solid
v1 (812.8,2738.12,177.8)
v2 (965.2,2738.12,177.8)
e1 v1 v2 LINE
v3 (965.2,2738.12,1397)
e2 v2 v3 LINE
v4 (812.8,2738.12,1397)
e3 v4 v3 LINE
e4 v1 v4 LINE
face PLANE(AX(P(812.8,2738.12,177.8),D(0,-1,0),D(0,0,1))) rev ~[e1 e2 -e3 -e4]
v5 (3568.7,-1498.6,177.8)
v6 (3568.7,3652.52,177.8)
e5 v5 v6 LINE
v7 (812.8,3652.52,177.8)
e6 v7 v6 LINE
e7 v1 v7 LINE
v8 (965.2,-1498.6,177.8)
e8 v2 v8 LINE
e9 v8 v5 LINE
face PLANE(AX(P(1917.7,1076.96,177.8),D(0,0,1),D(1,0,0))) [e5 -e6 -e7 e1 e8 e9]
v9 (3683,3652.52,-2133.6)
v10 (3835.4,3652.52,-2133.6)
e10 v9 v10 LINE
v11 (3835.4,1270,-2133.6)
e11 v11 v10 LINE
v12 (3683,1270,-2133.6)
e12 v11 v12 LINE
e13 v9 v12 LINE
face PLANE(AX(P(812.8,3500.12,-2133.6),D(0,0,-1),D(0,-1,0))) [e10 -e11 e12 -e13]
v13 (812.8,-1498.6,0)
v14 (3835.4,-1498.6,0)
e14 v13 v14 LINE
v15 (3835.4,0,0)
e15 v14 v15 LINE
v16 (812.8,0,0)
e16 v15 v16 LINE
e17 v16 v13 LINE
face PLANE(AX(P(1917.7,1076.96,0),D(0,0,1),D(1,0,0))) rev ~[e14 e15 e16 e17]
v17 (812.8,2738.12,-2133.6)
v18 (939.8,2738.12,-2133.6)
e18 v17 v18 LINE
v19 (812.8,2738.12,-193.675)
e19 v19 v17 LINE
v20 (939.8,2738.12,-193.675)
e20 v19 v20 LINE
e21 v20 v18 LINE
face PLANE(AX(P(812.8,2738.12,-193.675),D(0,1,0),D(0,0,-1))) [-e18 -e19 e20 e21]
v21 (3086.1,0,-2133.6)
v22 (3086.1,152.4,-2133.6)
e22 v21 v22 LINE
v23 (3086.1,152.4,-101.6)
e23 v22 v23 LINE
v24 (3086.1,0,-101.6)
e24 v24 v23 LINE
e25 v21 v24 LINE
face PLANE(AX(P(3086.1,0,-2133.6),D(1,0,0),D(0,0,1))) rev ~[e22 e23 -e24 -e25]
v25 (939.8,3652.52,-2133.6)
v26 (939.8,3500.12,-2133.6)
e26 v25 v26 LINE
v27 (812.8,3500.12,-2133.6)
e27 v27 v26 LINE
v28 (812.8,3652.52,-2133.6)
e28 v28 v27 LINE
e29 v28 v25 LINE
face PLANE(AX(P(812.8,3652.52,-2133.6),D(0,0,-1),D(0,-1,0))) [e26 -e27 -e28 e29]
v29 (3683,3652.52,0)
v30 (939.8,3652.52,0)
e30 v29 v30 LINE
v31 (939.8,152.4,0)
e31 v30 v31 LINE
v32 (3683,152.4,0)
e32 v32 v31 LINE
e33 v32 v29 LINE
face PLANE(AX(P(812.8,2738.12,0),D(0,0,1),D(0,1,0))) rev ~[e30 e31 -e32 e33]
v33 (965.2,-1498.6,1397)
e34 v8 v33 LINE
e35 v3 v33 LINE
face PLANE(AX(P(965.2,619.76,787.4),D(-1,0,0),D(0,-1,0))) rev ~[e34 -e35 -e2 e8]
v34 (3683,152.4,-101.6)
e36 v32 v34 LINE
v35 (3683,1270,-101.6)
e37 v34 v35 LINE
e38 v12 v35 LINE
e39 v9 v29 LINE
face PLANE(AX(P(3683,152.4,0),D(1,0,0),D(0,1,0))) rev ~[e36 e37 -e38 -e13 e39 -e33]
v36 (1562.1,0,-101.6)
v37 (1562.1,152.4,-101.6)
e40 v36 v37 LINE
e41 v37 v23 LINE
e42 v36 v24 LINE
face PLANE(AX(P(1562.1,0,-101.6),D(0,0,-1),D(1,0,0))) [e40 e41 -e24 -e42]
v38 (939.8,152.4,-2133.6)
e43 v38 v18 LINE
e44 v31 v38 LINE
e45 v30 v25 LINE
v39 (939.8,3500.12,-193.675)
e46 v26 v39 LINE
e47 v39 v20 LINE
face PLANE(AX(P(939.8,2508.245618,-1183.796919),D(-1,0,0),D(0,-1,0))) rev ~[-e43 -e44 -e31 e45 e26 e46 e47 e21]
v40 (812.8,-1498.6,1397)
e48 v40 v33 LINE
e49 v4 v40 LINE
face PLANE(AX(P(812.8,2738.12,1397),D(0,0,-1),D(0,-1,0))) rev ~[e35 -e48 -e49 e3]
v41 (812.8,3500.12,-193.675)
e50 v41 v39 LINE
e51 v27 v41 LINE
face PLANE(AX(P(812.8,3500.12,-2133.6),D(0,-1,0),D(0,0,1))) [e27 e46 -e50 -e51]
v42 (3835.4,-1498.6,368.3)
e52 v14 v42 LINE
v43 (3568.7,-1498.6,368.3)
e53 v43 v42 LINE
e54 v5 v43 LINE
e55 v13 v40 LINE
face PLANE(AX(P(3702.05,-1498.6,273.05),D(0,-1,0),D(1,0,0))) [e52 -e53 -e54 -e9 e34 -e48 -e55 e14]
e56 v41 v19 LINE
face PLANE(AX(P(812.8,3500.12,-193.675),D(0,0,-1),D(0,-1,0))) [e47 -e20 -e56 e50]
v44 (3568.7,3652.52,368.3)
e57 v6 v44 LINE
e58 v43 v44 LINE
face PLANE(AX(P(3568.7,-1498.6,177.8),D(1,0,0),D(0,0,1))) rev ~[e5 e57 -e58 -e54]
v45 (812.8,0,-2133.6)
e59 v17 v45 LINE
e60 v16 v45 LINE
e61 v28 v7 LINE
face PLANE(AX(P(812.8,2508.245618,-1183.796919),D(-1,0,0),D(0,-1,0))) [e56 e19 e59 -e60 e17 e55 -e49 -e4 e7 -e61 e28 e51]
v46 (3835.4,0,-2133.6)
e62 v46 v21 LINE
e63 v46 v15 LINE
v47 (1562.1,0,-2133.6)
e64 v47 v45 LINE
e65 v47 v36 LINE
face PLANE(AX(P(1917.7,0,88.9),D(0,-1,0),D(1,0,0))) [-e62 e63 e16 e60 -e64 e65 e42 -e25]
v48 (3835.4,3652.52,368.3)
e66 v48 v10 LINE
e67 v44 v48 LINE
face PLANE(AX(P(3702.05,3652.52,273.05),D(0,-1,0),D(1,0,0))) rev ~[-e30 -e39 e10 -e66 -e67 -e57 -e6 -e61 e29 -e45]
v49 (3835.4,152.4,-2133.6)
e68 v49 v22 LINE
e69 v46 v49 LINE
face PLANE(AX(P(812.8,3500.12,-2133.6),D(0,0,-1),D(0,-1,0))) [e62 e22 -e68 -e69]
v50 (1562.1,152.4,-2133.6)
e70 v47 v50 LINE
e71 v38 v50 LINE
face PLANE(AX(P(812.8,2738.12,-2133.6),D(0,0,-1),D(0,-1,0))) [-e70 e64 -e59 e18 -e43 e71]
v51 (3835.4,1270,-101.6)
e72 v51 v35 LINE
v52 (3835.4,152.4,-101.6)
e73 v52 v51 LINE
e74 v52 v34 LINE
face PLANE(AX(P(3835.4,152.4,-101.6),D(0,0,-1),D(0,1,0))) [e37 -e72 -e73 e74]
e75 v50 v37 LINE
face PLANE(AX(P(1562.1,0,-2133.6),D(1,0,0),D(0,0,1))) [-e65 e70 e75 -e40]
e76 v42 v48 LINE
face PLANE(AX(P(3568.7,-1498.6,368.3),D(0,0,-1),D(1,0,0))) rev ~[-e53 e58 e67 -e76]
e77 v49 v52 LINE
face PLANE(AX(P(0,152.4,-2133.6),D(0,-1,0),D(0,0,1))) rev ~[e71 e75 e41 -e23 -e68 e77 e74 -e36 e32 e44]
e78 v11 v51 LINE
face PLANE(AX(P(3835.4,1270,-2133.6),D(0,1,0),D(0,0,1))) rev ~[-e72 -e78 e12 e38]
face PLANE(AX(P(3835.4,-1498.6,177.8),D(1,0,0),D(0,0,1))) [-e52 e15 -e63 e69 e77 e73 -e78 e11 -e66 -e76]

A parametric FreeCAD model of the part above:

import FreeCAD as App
import Part
import Sketcher
Q = App.Units.Quantity


def add_polygon(sketch, points):
    """Adds a closed chain of lines whose ends are joined by coincident constraints."""
    first, n = sketch.GeometryCount, len(points)
    for a, b in zip(points, points[1:] + points[:1]):
        sketch.addGeometry(Part.LineSegment(App.Vector(*a, 0), App.Vector(*b, 0)), False)
    for i in range(n):
        sketch.addConstraint(Sketcher.Constraint("Coincident", first + i, 2, first + (i + 1) % n, 1))

doc = App.newDocument("Part")
body = doc.addObject("PartDesign::Body", "Body")

sketch1 = body.newObject("Sketcher::SketchObject", "Sketch")
sketch1.AttachmentSupport = (doc.getObject("XY_Plane"), [""])
sketch1.MapMode = "FlatFace"
add_polygon(sketch1, [(0, 3653), (0, 0), (3835, 0), (3835, 3653)])
add_polygon(sketch1, [(3683, 152), (152, 152), (152, 3500), (3683, 3500)])
sketch1.addConstraint([
    Sketcher.Constraint("Vertical", 0),
    Sketcher.Constraint("Horizontal", 1),
    Sketcher.Constraint("Vertical", 2),
    Sketcher.Constraint("Horizontal", 3),
    Sketcher.Constraint("Horizontal", 4),
    Sketcher.Constraint("Vertical", 5),
    Sketcher.Constraint("Horizontal", 6),
    Sketcher.Constraint("Vertical", 7),
    Sketcher.Constraint("Coincident", 0, 2, -1, 1),
    Sketcher.Constraint("DistanceX", 1, 1, 1, 2, Q("151 in")),
    Sketcher.Constraint("DistanceX", 4, 2, 4, 1, Q("139 in")),
    Sketcher.Constraint("DistanceY", 0, 2, 0, 1, Q("143.8 in")),
    Sketcher.Constraint("DistanceY", 5, 1, 5, 2, Q("131.8 in")),
    Sketcher.Constraint("DistanceX", -1, 1, 4, 2, Q("6 in")),
    Sketcher.Constraint("DistanceY", -1, 1, 4, 2, Q("6 in")),
])
pad1 = body.newObject("PartDesign::Pad", "Pad")
pad1.Profile = sketch1
pad1.Length = Q("84 in")
pad1.Reversed = True

sketch2 = body.newObject("Sketcher::SketchObject", "Sketch001")
sketch2.AttachmentSupport = (doc.getObject("XZ_Plane"), [""])
sketch2.MapMode = "FlatFace"
add_polygon(sketch2, [(0, 178), (0, 0), (3835, 0), (3835, 178)])
sketch2.addConstraint([
    Sketcher.Constraint("Vertical", 0),
    Sketcher.Constraint("Horizontal", 1),
    Sketcher.Constraint("Vertical", 2),
    Sketcher.Constraint("Horizontal", 3),
    Sketcher.Constraint("Coincident", 0, 2, -1, 1),
    Sketcher.Constraint("DistanceX", 1, 1, 1, 2, Q("151 in")),
    Sketcher.Constraint("DistanceY", 0, 2, 0, 1, Q("7 in")),
])
pad2 = body.newObject("PartDesign::Pad", "Pad001")
pad2.Profile = sketch2
pad2.Length = Q("143.8 in")
pad2.Reversed = True

sketch3 = body.newObject("Sketcher::SketchObject", "Sketch002")
sketch3.AttachmentSupport = (doc.getObject("YZ_Plane"), [""])
sketch3.MapMode = "FlatFace"
add_polygon(sketch3, [(3500, 0), (3500, -2134), (152, -2134), (152, 0)])
sketch3.addConstraint([
    Sketcher.Constraint("Vertical", 0),
    Sketcher.Constraint("Horizontal", 1),
    Sketcher.Constraint("Vertical", 2),
    Sketcher.Constraint("Horizontal", 3),
    Sketcher.Constraint("PointOnObject", 2, 2, -1),
    Sketcher.Constraint("DistanceY", 0, 2, 0, 1, Q("84 in")),
    Sketcher.Constraint("DistanceX", 1, 2, 1, 1, Q("131.8 in")),
    Sketcher.Constraint("DistanceX", -1, 1, 1, 2, Q("6 in")),
])
pocket1 = body.newObject("PartDesign::Pocket", "Pocket")
pocket1.Profile = sketch3
pocket1.Length = Q("6 in")
pocket1.Reversed = True

sketch4 = body.newObject("Sketcher::SketchObject", "Sketch003")
sketch4.AttachmentSupport = (doc.getObject("XY_Plane"), [""])
sketch4.MapMode = "FlatFace"
sketch4.AttachmentOffset = App.Placement(App.Vector(0, 0, 7 * 25.4), App.Rotation())
add_polygon(sketch4, [(0, 3653), (0, -1499), (3835, -1499), (3835, 3653)])
sketch4.addConstraint([
    Sketcher.Constraint("Vertical", 0),
    Sketcher.Constraint("Horizontal", 1),
    Sketcher.Constraint("Vertical", 2),
    Sketcher.Constraint("Horizontal", 3),
    Sketcher.Constraint("PointOnObject", 0, 2, -2),
    Sketcher.Constraint("DistanceX", 1, 1, 1, 2, Q("151 in")),
    Sketcher.Constraint("DistanceY", 0, 2, 0, 1, Q("202.8 in")),
    Sketcher.Constraint("DistanceY", 0, 2, -1, 1, Q("59 in")),
])
pad3 = body.newObject("PartDesign::Pad", "Pad002")
pad3.Profile = sketch4
pad3.Type = "UpToLast"
pad3.Reversed = True

sketch5 = body.newObject("Sketcher::SketchObject", "Sketch004")
sketch5.AttachmentSupport = (doc.getObject("YZ_Plane"), [""])
sketch5.MapMode = "FlatFace"
add_polygon(sketch5, [(3500, 178), (3500, -2134), (-1499, -2134), (-1499, 178)])
sketch5.addConstraint([
    Sketcher.Constraint("Vertical", 0),
    Sketcher.Constraint("Horizontal", 1),
    Sketcher.Constraint("Vertical", 2),
    Sketcher.Constraint("Horizontal", 3),
    Sketcher.Constraint("DistanceY", 0, 2, 0, 1, Q("91 in")),
    Sketcher.Constraint("DistanceX", 1, 2, 1, 1, Q("196.8 in")),
    Sketcher.Constraint("DistanceY", 0, 2, -1, 1, Q("84 in")),
    Sketcher.Constraint("DistanceX", 1, 2, -1, 1, Q("59 in")),
])
pocket2 = body.newObject("PartDesign::Pocket", "Pocket001")
pocket2.Profile = sketch5
pocket2.Length = Q("32 in")
pocket2.Reversed = True

sketch6 = body.newObject("Sketcher::SketchObject", "Sketch005")
sketch6.AttachmentSupport = (doc.getObject("YZ_Plane"), [""])
sketch6.MapMode = "FlatFace"
sketch6.AttachmentOffset = App.Placement(App.Vector(0, 0, 32 * 25.4), App.Rotation())
add_polygon(sketch6, [(3500, 178), (3500, -2134), (0, -2134), (0, 178)])
sketch6.addConstraint([
    Sketcher.Constraint("Vertical", 0),
    Sketcher.Constraint("Horizontal", 1),
    Sketcher.Constraint("Vertical", 2),
    Sketcher.Constraint("Horizontal", 3),
    Sketcher.Constraint("PointOnObject", 1, 2, -2),
    Sketcher.Constraint("DistanceY", 0, 2, 0, 1, Q("91 in")),
    Sketcher.Constraint("DistanceX", 1, 2, 1, 1, Q("137.8 in")),
    Sketcher.Constraint("DistanceY", 0, 2, -1, 1, Q("84 in")),
])
pad4 = body.newObject("PartDesign::Pad", "Pad003")
pad4.Profile = sketch6
pad4.Length = Q("5 in")

sketch7 = body.newObject("Sketcher::SketchObject", "Sketch006")
sketch7.AttachmentSupport = (doc.getObject("XZ_Plane"), [""])
sketch7.MapMode = "FlatFace"
add_polygon(sketch7, [(1562, -102), (1562, -2134), (3086, -2134), (3086, -102)])
sketch7.addConstraint([
    Sketcher.Constraint("Vertical", 0),
    Sketcher.Constraint("Horizontal", 1),
    Sketcher.Constraint("Vertical", 2),
    Sketcher.Constraint("Horizontal", 3),
    Sketcher.Constraint("DistanceX", 1, 1, 1, 2, Q("60 in")),
    Sketcher.Constraint("DistanceY", 0, 2, 0, 1, Q("80 in")),
    Sketcher.Constraint("DistanceY", 0, 2, -1, 1, Q("84 in")),
    Sketcher.Constraint("DistanceX", -1, 1, 0, 2, Q("61.5 in")),
])
pocket3 = body.newObject("PartDesign::Pocket", "Pocket002")
pocket3.Profile = sketch7
pocket3.Length = Q("6 in")

sketch8 = body.newObject("Sketcher::SketchObject", "Sketch007")
sketch8.AttachmentSupport = (doc.getObject("YZ_Plane"), [""])
sketch8.MapMode = "FlatFace"
sketch8.AttachmentOffset = App.Placement(App.Vector(0, 0, 151 * 25.4), App.Rotation())
add_polygon(sketch8, [(152, -102), (152, -2134), (1270, -2134), (1270, -102)])
sketch8.addConstraint([
    Sketcher.Constraint("Vertical", 0),
    Sketcher.Constraint("Horizontal", 1),
    Sketcher.Constraint("Vertical", 2),
    Sketcher.Constraint("Horizontal", 3),
    Sketcher.Constraint("DistanceX", 1, 1, 1, 2, Q("44 in")),
    Sketcher.Constraint("DistanceY", 0, 2, 0, 1, Q("80 in")),
    Sketcher.Constraint("DistanceX", -1, 1, 0, 2, Q("6 in")),
    Sketcher.Constraint("DistanceY", 0, 2, -1, 1, Q("84 in")),
])
pocket4 = body.newObject("PartDesign::Pocket", "Pocket003")
pocket4.Profile = sketch8
pocket4.Length = Q("6 in")

sketch9 = body.newObject("Sketcher::SketchObject", "Sketch008")
sketch9.AttachmentSupport = (doc.getObject("XZ_Plane"), [""])
sketch9.MapMode = "FlatFace"
sketch9.AttachmentOffset = App.Placement(App.Vector(0, 0, -137.8 * 25.4), App.Rotation())
add_polygon(sketch9, [(940, 0), (940, -2134), (3683, -2134), (3683, 0)])
sketch9.addConstraint([
    Sketcher.Constraint("Vertical", 0),
    Sketcher.Constraint("Horizontal", 1),
    Sketcher.Constraint("Vertical", 2),
    Sketcher.Constraint("Horizontal", 3),
    Sketcher.Constraint("PointOnObject", 2, 2, -1),
    Sketcher.Constraint("DistanceX", 1, 1, 1, 2, Q("108 in")),
    Sketcher.Constraint("DistanceY", 0, 2, 0, 1, Q("84 in")),
    Sketcher.Constraint("DistanceX", -1, 1, 0, 2, Q("37 in")),
])
pocket5 = body.newObject("PartDesign::Pocket", "Pocket004")
pocket5.Profile = sketch9
pocket5.Type = "ThroughAll"

sketch10 = body.newObject("Sketcher::SketchObject", "Sketch009")
sketch10.AttachmentSupport = (doc.getObject("XZ_Plane"), [""])
sketch10.MapMode = "FlatFace"
sketch10.AttachmentOffset = App.Placement(App.Vector(0, 0, -137.8 * 25.4), App.Rotation())
add_polygon(sketch10, [(0, 178), (0, -2134), (813, -2134), (813, 178)])
sketch10.addConstraint([
    Sketcher.Constraint("Vertical", 0),
    Sketcher.Constraint("Horizontal", 1),
    Sketcher.Constraint("Vertical", 2),
    Sketcher.Constraint("Horizontal", 3),
    Sketcher.Constraint("PointOnObject", 0, 2, -2),
    Sketcher.Constraint("DistanceX", 1, 1, 1, 2, Q("32 in")),
    Sketcher.Constraint("DistanceY", 0, 2, 0, 1, Q("91 in")),
    Sketcher.Constraint("DistanceY", 0, 2, -1, 1, Q("84 in")),
])
pocket6 = body.newObject("PartDesign::Pocket", "Pocket005")
pocket6.Profile = sketch10
pocket6.Type = "ThroughAll"

sketch11 = body.newObject("Sketcher::SketchObject", "Sketch010")
sketch11.AttachmentSupport = (doc.getObject("YZ_Plane"), [""])
sketch11.MapMode = "FlatFace"
sketch11.AttachmentOffset = App.Placement(App.Vector(0, 0, 32 * 25.4), App.Rotation())
add_polygon(sketch11, [(2738, 1397), (2738, 178), (-1499, 178), (-1499, 1397)])
sketch11.addConstraint([
    Sketcher.Constraint("Vertical", 0),
    Sketcher.Constraint("Horizontal", 1),
    Sketcher.Constraint("Vertical", 2),
    Sketcher.Constraint("Horizontal", 3),
    Sketcher.Constraint("DistanceY", 0, 2, 0, 1, Q("48 in")),
    Sketcher.Constraint("DistanceX", 1, 2, 1, 1, Q("166.8 in")),
    Sketcher.Constraint("DistanceY", -1, 1, 0, 2, Q("7 in")),
    Sketcher.Constraint("DistanceX", 1, 2, -1, 1, Q("59 in")),
])
pad5 = body.newObject("PartDesign::Pad", "Pad004")
pad5.Profile = sketch11
pad5.Length = Q("6 in")

sketch12 = body.newObject("Sketcher::SketchObject", "Sketch011")
sketch12.AttachmentSupport = (doc.getObject("YZ_Plane"), [""])
sketch12.MapMode = "FlatFace"
sketch12.AttachmentOffset = App.Placement(App.Vector(0, 0, 32 * 25.4), App.Rotation())
add_polygon(sketch12, [(3653, -2134), (203, -2134), (2738, 0), (3653, 0)])
sketch12.addConstraint([
    Sketcher.Constraint("Horizontal", 0),
    Sketcher.Constraint("Horizontal", 2),
    Sketcher.Constraint("Vertical", 3),
    Sketcher.Constraint("PointOnObject", 1, 2, -1),
    Sketcher.Constraint("DistanceX", 2, 1, 2, 2, Q("36 in")),
    Sketcher.Constraint("DistanceY", 3, 2, 3, 1, Q("84 in")),
    Sketcher.Constraint("DistanceX", 0, 2, 0, 1, Q("135.8 in")),
    Sketcher.Constraint("DistanceX", -1, 1, 0, 2, Q("8 in")),
])
pocket7 = body.newObject("PartDesign::Pocket", "Pocket006")
pocket7.Profile = sketch12
pocket7.Length = Q("6 in")
pocket7.Reversed = True

sketch13 = body.newObject("Sketcher::SketchObject", "Sketch012")
sketch13.AttachmentSupport = (doc.getObject("YZ_Plane"), [""])
sketch13.MapMode = "FlatFace"
sketch13.AttachmentOffset = App.Placement(App.Vector(0, 0, 32 * 25.4), App.Rotation())
add_polygon(sketch13, [(3653, 0), (3653, -2134), (3500, -2134), (3500, -194), (2738, -194), (2738, -2134), (203, -2134), (2738, 0)])
sketch13.addConstraint([
    Sketcher.Constraint("Vertical", 0),
    Sketcher.Constraint("Horizontal", 1),
    Sketcher.Constraint("Vertical", 2),
    Sketcher.Constraint("Horizontal", 3),
    Sketcher.Constraint("Vertical", 4),
    Sketcher.Constraint("Horizontal", 5),
    Sketcher.Constraint("Horizontal", 7),
    Sketcher.Constraint("PointOnObject", 6, 2, -1),
    Sketcher.Constraint("Horizontal", 1, 2, 4, 2),
    Sketcher.Constraint("Vertical", 4, 2, 6, 2),
    Sketcher.Constraint("DistanceX", 1, 2, 1, 1, Q("6 in")),
    Sketcher.Constraint("DistanceX", 3, 2, 3, 1, Q("30 in")),
    Sketcher.Constraint("DistanceY", 0, 2, 0, 1, Q("84 in")),
    Sketcher.Constraint("DistanceX", 5, 2, 5, 1, Q("99.8 in")),
    Sketcher.Constraint("DistanceX", -1, 1, 5, 2, Q("8 in")),
    Sketcher.Constraint("DistanceY", 2, 1, 2, 2, Q("76.375 in")),
])
pad6 = body.newObject("PartDesign::Pad", "Pad005")
pad6.Profile = sketch13
pad6.Length = Q("5 in")

sketch14 = body.newObject("Sketcher::SketchObject", "Sketch013")
sketch14.AttachmentSupport = (doc.getObject("XZ_Plane"), [""])
sketch14.MapMode = "FlatFace"
sketch14.AttachmentOffset = App.Placement(App.Vector(0, 0, 59 * 25.4), App.Rotation())
add_polygon(sketch14, [(3569, 368), (3569, 178), (3835, 178), (3835, 368)])
sketch14.addConstraint([
    Sketcher.Constraint("Vertical", 0),
    Sketcher.Constraint("Horizontal", 1),
    Sketcher.Constraint("Vertical", 2),
    Sketcher.Constraint("Horizontal", 3),
    Sketcher.Constraint("DistanceX", 1, 1, 1, 2, Q("10.5 in")),
    Sketcher.Constraint("DistanceY", 0, 2, 0, 1, Q("7.5 in")),
    Sketcher.Constraint("DistanceY", -1, 1, 0, 2, Q("7 in")),
    Sketcher.Constraint("DistanceX", -1, 1, 1, 2, Q("151 in")),
])
pad7 = body.newObject("PartDesign::Pad", "Pad006")
pad7.Profile = sketch14
pad7.Length = Q("202.8 in")
pad7.Reversed = True

doc.recompute()
